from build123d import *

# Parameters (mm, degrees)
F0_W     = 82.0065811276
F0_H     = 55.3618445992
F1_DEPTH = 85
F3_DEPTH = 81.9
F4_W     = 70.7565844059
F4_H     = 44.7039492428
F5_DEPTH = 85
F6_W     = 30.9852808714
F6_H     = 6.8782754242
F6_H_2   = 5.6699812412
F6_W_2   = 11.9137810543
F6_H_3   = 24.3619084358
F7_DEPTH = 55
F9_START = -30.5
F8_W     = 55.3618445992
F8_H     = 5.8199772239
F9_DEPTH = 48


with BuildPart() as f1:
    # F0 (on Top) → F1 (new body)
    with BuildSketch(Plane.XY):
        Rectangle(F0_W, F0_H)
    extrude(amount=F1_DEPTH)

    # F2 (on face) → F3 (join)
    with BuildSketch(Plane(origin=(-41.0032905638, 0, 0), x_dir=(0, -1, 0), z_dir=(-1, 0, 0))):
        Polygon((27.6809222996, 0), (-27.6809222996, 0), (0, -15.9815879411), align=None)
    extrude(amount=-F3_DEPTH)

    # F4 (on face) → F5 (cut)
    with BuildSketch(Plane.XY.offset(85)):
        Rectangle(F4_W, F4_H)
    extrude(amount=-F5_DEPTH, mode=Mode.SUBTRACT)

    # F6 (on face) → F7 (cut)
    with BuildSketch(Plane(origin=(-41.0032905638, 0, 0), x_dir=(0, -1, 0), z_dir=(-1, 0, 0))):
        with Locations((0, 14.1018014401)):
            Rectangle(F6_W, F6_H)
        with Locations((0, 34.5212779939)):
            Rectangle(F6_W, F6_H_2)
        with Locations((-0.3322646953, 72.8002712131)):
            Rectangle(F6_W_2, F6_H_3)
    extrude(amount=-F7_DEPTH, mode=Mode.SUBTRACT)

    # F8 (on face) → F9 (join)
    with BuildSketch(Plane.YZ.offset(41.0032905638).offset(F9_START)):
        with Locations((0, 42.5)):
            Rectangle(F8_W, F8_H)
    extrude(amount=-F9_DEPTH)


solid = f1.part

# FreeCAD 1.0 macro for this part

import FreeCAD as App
import Part
import Sketcher
Q = App.Units.Quantity


def add_polygon(sketch, points):
    """Adds a closed chain of lines whose ends are joined by coincident constraints."""
    first, n = sketch.GeometryCount, len(points)
    for a, b in zip(points, points[1:] + points[:1]):
        sketch.addGeometry(Part.LineSegment(App.Vector(*a, 0), App.Vector(*b, 0)), False)
    for i in range(n):
        sketch.addConstraint(Sketcher.Constraint("Coincident", first + i, 2, first + (i + 1) % n, 1))

doc = App.newDocument("Part")
body = doc.addObject("PartDesign::Body", "Body")

sketch1 = body.newObject("Sketcher::SketchObject", "Sketch")
sketch1.AttachmentSupport = (doc.getObject("XY_Plane"), [""])
sketch1.MapMode = "FlatFace"
add_polygon(sketch1, [(-41.003291, 27.680922), (-41.003291, -27.680922), (41.003291, -27.680922), (41.003291, 27.680922)])
sketch1.addConstraint(Sketcher.Constraint("Vertical", 0))
sketch1.addConstraint(Sketcher.Constraint("Horizontal", 1))
sketch1.addConstraint(Sketcher.Constraint("Vertical", 2))
sketch1.addConstraint(Sketcher.Constraint("Horizontal", 3))
sketch1.addConstraint(Sketcher.Constraint("Symmetric", 0, 2, 2, 2, -1, 1))
sketch1.addConstraint(Sketcher.Constraint("DistanceX", 1, 1, 1, 2, Q("82.006581 mm")))
sketch1.addConstraint(Sketcher.Constraint("DistanceY", 0, 2, 0, 1, Q("55.361845 mm")))
pad1 = body.newObject("PartDesign::Pad", "Pad")
pad1.Profile = sketch1
pad1.Length = 85

sketch2 = body.newObject("Sketcher::SketchObject", "Sketch001")
sketch2.AttachmentSupport = (doc.getObject("YZ_Plane"), [""])
sketch2.MapMode = "FlatFace"
sketch2.AttachmentOffset = App.Placement(App.Vector(0, 0, -41.003291), App.Rotation())
add_polygon(sketch2, [(-27.680922, 0), (27.680922, 0), (0, -15.981588)])
sketch2.addConstraint(Sketcher.Constraint("Horizontal", 0))
sketch2.addConstraint(Sketcher.Constraint("Symmetric", 0, 2, 2, 2, -1, 1))
sketch2.addConstraint(Sketcher.Constraint("PointOnObject", 1, 2, -2))
sketch2.addConstraint(Sketcher.Constraint("Angle", 1, Q("-150 deg")))
sketch2.addConstraint(Sketcher.Constraint("DistanceX", 0, 1, 0, 2, Q("55.361845 mm")))
pad2 = body.newObject("PartDesign::Pad", "Pad001")
pad2.Profile = sketch2
pad2.Length = 81.9

sketch3 = body.newObject("Sketcher::SketchObject", "Sketch002")
sketch3.AttachmentSupport = (doc.getObject("XY_Plane"), [""])
sketch3.MapMode = "FlatFace"
sketch3.AttachmentOffset = App.Placement(App.Vector(0, 0, 85), App.Rotation())
add_polygon(sketch3, [(-35.378292, 22.351975), (-35.378292, -22.351975), (35.378292, -22.351975), (35.378292, 22.351975)])
sketch3.addConstraint(Sketcher.Constraint("Vertical", 0))
sketch3.addConstraint(Sketcher.Constraint("Horizontal", 1))
sketch3.addConstraint(Sketcher.Constraint("Vertical", 2))
sketch3.addConstraint(Sketcher.Constraint("Horizontal", 3))
sketch3.addConstraint(Sketcher.Constraint("Symmetric", 0, 2, 2, 2, -1, 1))
sketch3.addConstraint(Sketcher.Constraint("DistanceY", 0, 2, 0, 1, Q("44.703949 mm")))
sketch3.addConstraint(Sketcher.Constraint("DistanceX", 1, 1, 1, 2, Q("70.756584 mm")))
pocket1 = body.newObject("PartDesign::Pocket", "Pocket")
pocket1.Profile = sketch3
pocket1.Length = 85

sketch4 = body.newObject("Sketcher::SketchObject", "Sketch003")
sketch4.AttachmentSupport = (doc.getObject("YZ_Plane"), [""])
sketch4.MapMode = "FlatFace"
sketch4.AttachmentOffset = App.Placement(App.Vector(0, 0, -41.003291), App.Rotation())
add_polygon(sketch4, [(15.49264, 17.540939), (15.49264, 10.662664), (-15.49264, 10.662664), (-15.49264, 17.540939)])
add_polygon(sketch4, [(15.49264, 37.356269), (15.49264, 31.686287), (-15.49264, 31.686287), (-15.49264, 37.356269)])
add_polygon(sketch4, [(6.289155, 84.981225), (6.289155, 60.619317), (-5.624626, 60.619317), (-5.624626, 84.981225)])
sketch4.addConstraint(Sketcher.Constraint("Vertical", 0))
sketch4.addConstraint(Sketcher.Constraint("Horizontal", 1))
sketch4.addConstraint(Sketcher.Constraint("Vertical", 2))
sketch4.addConstraint(Sketcher.Constraint("Horizontal", 3))
sketch4.addConstraint(Sketcher.Constraint("Vertical", 4))
sketch4.addConstraint(Sketcher.Constraint("Horizontal", 5))
sketch4.addConstraint(Sketcher.Constraint("Vertical", 6))
sketch4.addConstraint(Sketcher.Constraint("Horizontal", 7))
sketch4.addConstraint(Sketcher.Constraint("Vertical", 8))
sketch4.addConstraint(Sketcher.Constraint("Horizontal", 9))
sketch4.addConstraint(Sketcher.Constraint("Vertical", 10))
sketch4.addConstraint(Sketcher.Constraint("Horizontal", 11))
sketch4.addConstraint(Sketcher.Constraint("Vertical", 3, 2, 4, 2))
sketch4.addConstraint(Sketcher.Constraint("Vertical", 2, 2, 5, 2))
sketch4.addConstraint(Sketcher.Constraint("DistanceX", 1, 2, 1, 1, Q("30.985281 mm")))
sketch4.addConstraint(Sketcher.Constraint("DistanceX", 9, 2, 9, 1, Q("11.913781 mm")))
sketch4.addConstraint(Sketcher.Constraint("DistanceY", 4, 2, 4, 1, Q("5.669981 mm")))
sketch4.addConstraint(Sketcher.Constraint("DistanceY", 8, 2, 8, 1, Q("24.361908 mm")))
sketch4.addConstraint(Sketcher.Constraint("DistanceY", 0, 2, 0, 1, Q("6.878275 mm")))
sketch4.addConstraint(Sketcher.Constraint("DistanceX", -1, 1, 0, 2, Q("15.49264 mm")))
sketch4.addConstraint(Sketcher.Constraint("DistanceY", -1, 1, 2, 2, Q("17.540939 mm")))
sketch4.addConstraint(Sketcher.Constraint("DistanceY", -1, 1, 6, 2, Q("37.356269 mm")))
sketch4.addConstraint(Sketcher.Constraint("DistanceY", 7, 2, 8, 2, Q("23.263048 mm")))
sketch4.addConstraint(Sketcher.Constraint("DistanceX", -1, 1, 8, 2, Q("6.289155 mm")))
pocket2 = body.newObject("PartDesign::Pocket", "Pocket001")
pocket2.Profile = sketch4
pocket2.Length = 55
pocket2.Reversed = True

sketch5 = body.newObject("Sketcher::SketchObject", "Sketch004")
sketch5.AttachmentSupport = (doc.getObject("YZ_Plane"), [""])
sketch5.MapMode = "FlatFace"
sketch5.AttachmentOffset = App.Placement(App.Vector(0, 0, 10.503291), App.Rotation())
add_polygon(sketch5, [(-27.680922, 45.409989), (-27.680922, 39.590011), (27.680922, 39.590011), (27.680922, 45.409989)])
sketch5.addConstraint(Sketcher.Constraint("Vertical", 0))
sketch5.addConstraint(Sketcher.Constraint("Horizontal", 1))
sketch5.addConstraint(Sketcher.Constraint("Vertical", 2))
sketch5.addConstraint(Sketcher.Constraint("Horizontal", 3))
sketch5.addConstraint(Sketcher.Constraint("DistanceX", 1, 1, 1, 2, Q("55.361845 mm")))
sketch5.addConstraint(Sketcher.Constraint("DistanceY", 0, 2, 0, 1, Q("5.819977 mm")))
sketch5.addConstraint(Sketcher.Constraint("DistanceY", -1, 1, 0, 2, Q("39.590011 mm")))
sketch5.addConstraint(Sketcher.Constraint("DistanceX", 0, 2, -1, 1, Q("27.680922 mm")))
pad3 = body.newObject("PartDesign::Pad", "Pad002")
pad3.Profile = sketch5
pad3.Length = 48
pad3.Reversed = True

doc.recompute()
